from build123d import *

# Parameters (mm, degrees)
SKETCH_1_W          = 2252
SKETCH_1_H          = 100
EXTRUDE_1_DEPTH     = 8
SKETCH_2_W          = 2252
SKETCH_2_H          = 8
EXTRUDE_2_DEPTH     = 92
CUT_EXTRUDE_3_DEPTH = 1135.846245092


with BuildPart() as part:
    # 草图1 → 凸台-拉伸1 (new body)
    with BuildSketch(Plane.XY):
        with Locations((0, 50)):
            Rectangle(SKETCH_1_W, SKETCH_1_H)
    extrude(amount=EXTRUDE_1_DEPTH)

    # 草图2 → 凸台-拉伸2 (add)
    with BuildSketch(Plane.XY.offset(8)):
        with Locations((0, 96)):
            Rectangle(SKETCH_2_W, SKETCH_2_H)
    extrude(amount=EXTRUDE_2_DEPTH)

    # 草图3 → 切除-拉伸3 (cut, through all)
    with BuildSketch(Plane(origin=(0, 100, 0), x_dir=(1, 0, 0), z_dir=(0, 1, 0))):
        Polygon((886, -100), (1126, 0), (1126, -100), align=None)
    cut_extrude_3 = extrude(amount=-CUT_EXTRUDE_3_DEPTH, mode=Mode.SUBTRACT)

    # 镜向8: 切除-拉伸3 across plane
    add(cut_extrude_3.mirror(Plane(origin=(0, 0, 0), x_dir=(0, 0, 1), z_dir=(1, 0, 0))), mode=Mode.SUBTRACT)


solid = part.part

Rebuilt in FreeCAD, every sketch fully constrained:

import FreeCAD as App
import Part
import Sketcher

V = App.Vector
Q = App.Units.Quantity

doc = App.newDocument("Part")
body = doc.addObject("PartDesign::Body", "Body")

sketch1 = body.newObject("Sketcher::SketchObject", "Sketch")
sketch1.AttachmentSupport = (doc.getObject("XY_Plane"), [""])
sketch1.MapMode = "FlatFace"
sketch1.addGeometry(Part.LineSegment(V(-1126, 100, 0), V(-1126, 0, 0)), False)
sketch1.addGeometry(Part.LineSegment(V(-1126, 0, 0), V(1126, 0, 0)), False)
sketch1.addGeometry(Part.LineSegment(V(1126, 0, 0), V(1126, 100, 0)), False)
sketch1.addGeometry(Part.LineSegment(V(1126, 100, 0), V(-1126, 100, 0)), False)
sketch1.addConstraint(Sketcher.Constraint("Coincident", 0, 2, 1, 1))
sketch1.addConstraint(Sketcher.Constraint("Coincident", 1, 2, 2, 1))
sketch1.addConstraint(Sketcher.Constraint("Coincident", 2, 2, 3, 1))
sketch1.addConstraint(Sketcher.Constraint("Coincident", 3, 2, 0, 1))
sketch1.addConstraint(Sketcher.Constraint("Vertical", 0))
sketch1.addConstraint(Sketcher.Constraint("Horizontal", 1))
sketch1.addConstraint(Sketcher.Constraint("Vertical", 2))
sketch1.addConstraint(Sketcher.Constraint("Horizontal", 3))
sketch1.addConstraint(Sketcher.Constraint("Symmetric", 0, 2, 1, 2, -1, 1))
sketch1.addConstraint(Sketcher.Constraint("DistanceX", 1, 1, 1, 2, Q("2252 mm")))
sketch1.addConstraint(Sketcher.Constraint("DistanceY", 0, 2, 0, 1, Q("100 mm")))
pad1 = body.newObject("PartDesign::Pad", "Pad")
pad1.Profile = sketch1
pad1.Length = 8

sketch2 = body.newObject("Sketcher::SketchObject", "Sketch001")
sketch2.AttachmentSupport = (doc.getObject("XY_Plane"), [""])
sketch2.MapMode = "FlatFace"
sketch2.AttachmentOffset = App.Placement(V(0, 0, 8), App.Rotation())
sketch2.addGeometry(Part.LineSegment(V(-1126, 100, 0), V(-1126, 92, 0)), False)
sketch2.addGeometry(Part.LineSegment(V(-1126, 92, 0), V(1126, 92, 0)), False)
sketch2.addGeometry(Part.LineSegment(V(1126, 92, 0), V(1126, 100, 0)), False)
sketch2.addGeometry(Part.LineSegment(V(1126, 100, 0), V(-1126, 100, 0)), False)
sketch2.addConstraint(Sketcher.Constraint("Coincident", 0, 2, 1, 1))
sketch2.addConstraint(Sketcher.Constraint("Coincident", 1, 2, 2, 1))
sketch2.addConstraint(Sketcher.Constraint("Coincident", 2, 2, 3, 1))
sketch2.addConstraint(Sketcher.Constraint("Coincident", 3, 2, 0, 1))
sketch2.addConstraint(Sketcher.Constraint("Vertical", 0))
sketch2.addConstraint(Sketcher.Constraint("Horizontal", 1))
sketch2.addConstraint(Sketcher.Constraint("Vertical", 2))
sketch2.addConstraint(Sketcher.Constraint("Horizontal", 3))
sketch2.addConstraint(Sketcher.Constraint("DistanceX", 1, 1, 1, 2, Q("2252 mm")))
sketch2.addConstraint(Sketcher.Constraint("DistanceY", 0, 2, 0, 1, Q("8 mm")))
sketch2.addConstraint(Sketcher.Constraint("DistanceX", 0, 2, -1, 1, Q("1126 mm")))
sketch2.addConstraint(Sketcher.Constraint("DistanceY", -1, 1, 0, 2, Q("92 mm")))
pad2 = body.newObject("PartDesign::Pad", "Pad001")
pad2.Profile = sketch2
pad2.Length = 92

sketch3 = body.newObject("Sketcher::SketchObject", "Sketch002")
sketch3.AttachmentSupport = (doc.getObject("XZ_Plane"), [""])
sketch3.MapMode = "FlatFace"
sketch3.AttachmentOffset = App.Placement(V(0, 0, -100), App.Rotation())
sketch3.addGeometry(Part.LineSegment(V(1126, 0, 0), V(886, 100, 0)), False)
sketch3.addGeometry(Part.LineSegment(V(886, 100, 0), V(1126, 100, 0)), False)
sketch3.addGeometry(Part.LineSegment(V(1126, 100, 0), V(1126, 0, 0)), False)
sketch3.addConstraint(Sketcher.Constraint("Coincident", 0, 2, 1, 1))
sketch3.addConstraint(Sketcher.Constraint("Coincident", 1, 2, 2, 1))
sketch3.addConstraint(Sketcher.Constraint("Coincident", 2, 2, 0, 1))
sketch3.addConstraint(Sketcher.Constraint("Horizontal", 1))
sketch3.addConstraint(Sketcher.Constraint("Vertical", 2))
sketch3.addConstraint(Sketcher.Constraint("PointOnObject", 2, 2, -1))
sketch3.addConstraint(Sketcher.Constraint("DistanceX", 1, 1, 1, 2, Q("240 mm")))
sketch3.addConstraint(Sketcher.Constraint("DistanceY", 2, 2, 2, 1, Q("100 mm")))
sketch3.addConstraint(Sketcher.Constraint("DistanceX", -1, 1, 0, 2, Q("886 mm")))
pocket1 = body.newObject("PartDesign::Pocket", "Pocket")
pocket1.Profile = sketch3
pocket1.Type = "ThroughAll"
pocket1.Reversed = True
doc.recompute()

mirrored = body.newObject("PartDesign::Mirrored", "Mirrored")
mirrored.Originals = [pocket1]
mirrored.MirrorPlane = (doc.getObject("YZ_Plane"), [""])
body.Tip = mirrored

doc.recompute()
